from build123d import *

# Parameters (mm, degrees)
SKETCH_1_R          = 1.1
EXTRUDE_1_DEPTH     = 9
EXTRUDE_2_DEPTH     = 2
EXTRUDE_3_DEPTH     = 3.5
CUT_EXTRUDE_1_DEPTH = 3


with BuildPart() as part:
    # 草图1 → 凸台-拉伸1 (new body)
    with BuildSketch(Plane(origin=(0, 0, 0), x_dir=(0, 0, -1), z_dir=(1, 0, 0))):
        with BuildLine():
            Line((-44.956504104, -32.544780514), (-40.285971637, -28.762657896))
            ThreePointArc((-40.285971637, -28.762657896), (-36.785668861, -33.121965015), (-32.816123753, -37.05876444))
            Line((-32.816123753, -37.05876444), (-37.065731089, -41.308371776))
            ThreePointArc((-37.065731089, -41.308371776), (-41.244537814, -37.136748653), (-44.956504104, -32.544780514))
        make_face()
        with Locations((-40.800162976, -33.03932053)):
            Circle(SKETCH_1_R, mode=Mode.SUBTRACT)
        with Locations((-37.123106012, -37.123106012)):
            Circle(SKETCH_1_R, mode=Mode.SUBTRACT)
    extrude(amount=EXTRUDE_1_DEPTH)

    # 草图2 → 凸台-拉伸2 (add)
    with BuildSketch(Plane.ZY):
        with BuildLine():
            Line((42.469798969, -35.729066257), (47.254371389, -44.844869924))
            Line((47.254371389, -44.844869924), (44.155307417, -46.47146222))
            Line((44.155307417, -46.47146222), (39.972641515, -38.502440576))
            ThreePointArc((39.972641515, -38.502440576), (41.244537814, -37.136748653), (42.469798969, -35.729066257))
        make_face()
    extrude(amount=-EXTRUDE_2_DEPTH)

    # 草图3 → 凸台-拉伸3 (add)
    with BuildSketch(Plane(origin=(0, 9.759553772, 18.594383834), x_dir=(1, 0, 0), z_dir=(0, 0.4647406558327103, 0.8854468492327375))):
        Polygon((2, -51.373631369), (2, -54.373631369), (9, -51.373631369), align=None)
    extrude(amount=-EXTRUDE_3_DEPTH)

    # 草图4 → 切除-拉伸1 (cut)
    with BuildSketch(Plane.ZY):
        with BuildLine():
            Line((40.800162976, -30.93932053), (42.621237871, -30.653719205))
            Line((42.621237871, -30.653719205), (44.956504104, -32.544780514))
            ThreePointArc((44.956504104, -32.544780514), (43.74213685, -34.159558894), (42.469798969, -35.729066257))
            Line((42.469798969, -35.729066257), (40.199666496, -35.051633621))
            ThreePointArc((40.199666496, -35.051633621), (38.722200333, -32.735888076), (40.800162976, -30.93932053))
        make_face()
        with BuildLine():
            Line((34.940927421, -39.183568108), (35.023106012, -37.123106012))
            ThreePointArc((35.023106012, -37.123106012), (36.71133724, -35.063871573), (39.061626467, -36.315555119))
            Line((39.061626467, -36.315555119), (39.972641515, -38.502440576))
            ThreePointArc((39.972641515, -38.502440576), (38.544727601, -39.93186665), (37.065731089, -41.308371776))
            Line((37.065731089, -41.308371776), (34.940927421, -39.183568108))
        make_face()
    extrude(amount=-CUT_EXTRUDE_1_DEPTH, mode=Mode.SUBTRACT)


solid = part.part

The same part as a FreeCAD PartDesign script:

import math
import FreeCAD as App
import Part
import Sketcher
from FreeCAD import Vector
Q = App.Units.Quantity


def add_polygon(sketch, points):
    """Adds a closed chain of lines whose ends are joined by coincident constraints."""
    first, n = sketch.GeometryCount, len(points)
    for a, b in zip(points, points[1:] + points[:1]):
        sketch.addGeometry(Part.LineSegment(App.Vector(*a, 0), App.Vector(*b, 0)), False)
    for i in range(n):
        sketch.addConstraint(Sketcher.Constraint("Coincident", first + i, 2, first + (i + 1) % n, 1))

doc = App.newDocument("Part")
body = doc.addObject("PartDesign::Body", "Body")

sketch1 = body.newObject("Sketcher::SketchObject", "Sketch")
sketch1.AttachmentSupport = (doc.getObject("YZ_Plane"), [""])
sketch1.MapMode = "FlatFace"
sketch1.addGeometry([
    Part.LineSegment(Vector(-28.762658, 40.285972, 0), Vector(-32.544781, 44.956504, 0)),
    Part.ArcOfCircle(Part.Circle(Vector(0, 0, 0), Vector(0, 0, 1), 55.5), math.radians(125.901421), math.radians(138.098579)),
    Part.LineSegment(Vector(-41.308372, 37.065731, 0), Vector(-37.058764, 32.816124, 0)),
    Part.ArcOfCircle(Part.Circle(Vector(0, 0, 0), Vector(0, 0, 1), 49.5), math.radians(125.525399), math.radians(138.474601)),
    Part.Circle(Vector(-37.123106, 37.123106, 0), Vector(0, 0, 1), 1.1),
    Part.Circle(Vector(-33.039321, 40.800163, 0), Vector(0, 0, 1), 1.1),
], False)
sketch1.addConstraint([
    Sketcher.Constraint("Coincident", 0, 2, 1, 1),
    Sketcher.Constraint("Coincident", 1, 2, 2, 1),
    Sketcher.Constraint("Coincident", 2, 2, 3, 2),
    Sketcher.Constraint("Coincident", 3, 1, 0, 1),
    Sketcher.Constraint("Coincident", 1, 3, -1, 1),
    Sketcher.Constraint("Coincident", 3, 3, -1, 1),
    Sketcher.Constraint("Equal", 4, 5),
    Sketcher.Constraint("Equal", 0, 2),
    Sketcher.Constraint("Diameter", 4, 2.2),
    Sketcher.Constraint("Radius", 1, 55.5),
    Sketcher.Constraint("Radius", 3, 49.5),
    Sketcher.Constraint("Angle", 0, Q("129 deg")),
    Sketcher.Constraint("Angle", 2, Q("-45 deg")),
    Sketcher.Constraint("DistanceY", 4, 3, 0, 2, 7.833398),
    Sketcher.Constraint("DistanceX", 5, 3, -1, 1, 33.039321),
    Sketcher.Constraint("DistanceX", 0, 2, -1, 1, 32.544781),
    Sketcher.Constraint("DistanceY", 5, 3, 0, 2, 4.156341),
    Sketcher.Constraint("DistanceX", 4, 3, 2, 2, 0.064342),
])
pad1 = body.newObject("PartDesign::Pad", "Pad")
pad1.Profile = sketch1
pad1.Length = 9

sketch2 = body.newObject("Sketcher::SketchObject", "Sketch001")
sketch2.AttachmentSupport = (doc.getObject("YZ_Plane"), [""])
sketch2.MapMode = "FlatFace"
sketch2.addGeometry([
    Part.LineSegment(Vector(-44.84487, 47.254371, 0), Vector(-35.729066, 42.469799, 0)),
    Part.ArcOfCircle(Part.Circle(Vector(0, 0, 0), Vector(0, 0, 1), 55.5), math.radians(130.073289), math.radians(133.926711)),
    Part.LineSegment(Vector(-38.502441, 39.972642, 0), Vector(-46.471462, 44.155307, 0)),
    Part.LineSegment(Vector(-46.471462, 44.155307, 0), Vector(-44.84487, 47.254371, 0)),
], False)
sketch2.addConstraint([
    Sketcher.Constraint("Coincident", 0, 2, 1, 1),
    Sketcher.Constraint("Coincident", 1, 2, 2, 1),
    Sketcher.Constraint("Coincident", 2, 2, 3, 1),
    Sketcher.Constraint("Coincident", 3, 2, 0, 1),
    Sketcher.Constraint("Coincident", 1, 3, -1, 1),
    Sketcher.Constraint("Parallel", 0, 2),
    Sketcher.Constraint("Perpendicular", 2, 3),
    Sketcher.Constraint("Radius", 1, 55.5),
    Sketcher.Constraint("Distance", 2, 9.0),
    Sketcher.Constraint("Distance", 3, 3.5),
    Sketcher.Constraint("DistanceY", -1, 1, 0, 2, 42.469799),
    Sketcher.Constraint("DistanceX", 3, 2, -1, 1, 44.84487),
])
pad2 = body.newObject("PartDesign::Pad", "Pad001")
pad2.Profile = sketch2
pad2.Length = 2

sketch3 = body.newObject("Sketcher::SketchObject", "Sketch002")
sketch3.Placement = App.Placement(Vector(0, 9.759554, 18.594384), App.Rotation(Vector(1, 0, 0), Vector(0, 0.885446849, -0.464740656), Vector(0, 0.464740656, 0.885446849), "ZXY"))
add_polygon(sketch3, [(2, -51.373631), (2, -54.373631), (9, -51.373631)])
sketch3.addConstraint([
    Sketcher.Constraint("Vertical", 0),
    Sketcher.Constraint("Horizontal", 2),
    Sketcher.Constraint("DistanceX", 2, 2, 2, 1, 7.0),
    Sketcher.Constraint("DistanceY", 0, 2, 0, 1, 3.0),
    Sketcher.Constraint("DistanceX", -1, 1, 0, 2, 2.0),
    Sketcher.Constraint("DistanceY", 0, 2, -1, 1, 54.373631),
])
pad3 = body.newObject("PartDesign::Pad", "Pad002")
pad3.Profile = sketch3
pad3.Length = 3.5
pad3.Reversed = True

sketch4 = body.newObject("Sketcher::SketchObject", "Sketch003")
sketch4.AttachmentSupport = (doc.getObject("YZ_Plane"), [""])
sketch4.MapMode = "FlatFace"
sketch4.addGeometry([
    Part.LineSegment(Vector(-30.653719, 42.621238, 0), Vector(-30.939321, 40.800163, 0)),
    Part.ArcOfCircle(Part.Circle(Vector(-33.039321, 40.800163, 0), Vector(0, 0, 1), 2.1), math.radians(-163.384315), math.radians(0)),
    Part.LineSegment(Vector(-35.051634, 40.199666, 0), Vector(-35.729066, 42.469799, 0)),
    Part.ArcOfCircle(Part.Circle(Vector(0, 0, 0), Vector(0, 0, 1), 55.5), math.radians(125.901421), math.radians(130.073289)),
    Part.LineSegment(Vector(-32.544781, 44.956504, 0), Vector(-30.653719, 42.621238, 0)),
    Part.LineSegment(Vector(-37.123106, 35.023106, 0), Vector(-39.183568, 34.940927, 0)),
    Part.LineSegment(Vector(-39.183568, 34.940927, 0), Vector(-41.308372, 37.065731, 0)),
    Part.ArcOfCircle(Part.Circle(Vector(0, 0, 0), Vector(0, 0, 1), 55.5), math.radians(133.926711), math.radians(138.098579)),
    Part.LineSegment(Vector(-38.502441, 39.972642, 0), Vector(-36.315555, 39.061626, 0)),
    Part.ArcOfCircle(Part.Circle(Vector(-37.123106, 37.123106, 0), Vector(0, 0, 1), 2.1), math.radians(-90), math.radians(67.384315)),
], False)
sketch4.addConstraint([
    Sketcher.Constraint("Coincident", 0, 2, 1, 2),
    Sketcher.Constraint("Tangent", 1, 1, 2, 1),
    Sketcher.Constraint("Coincident", 2, 2, 3, 2),
    Sketcher.Constraint("Coincident", 3, 1, 4, 1),
    Sketcher.Constraint("Coincident", 4, 2, 0, 1),
    Sketcher.Constraint("Coincident", 5, 2, 6, 1),
    Sketcher.Constraint("Coincident", 6, 2, 7, 2),
    Sketcher.Constraint("Coincident", 7, 1, 8, 1),
    Sketcher.Constraint("Tangent", 8, 2, 9, 2),
    Sketcher.Constraint("Coincident", 9, 1, 5, 1),
    Sketcher.Constraint("Coincident", 3, 3, -1, 1),
    Sketcher.Constraint("Coincident", 7, 3, -1, 1),
    Sketcher.Constraint("Equal", 3, 7),
    Sketcher.Constraint("Equal", 1, 9),
    Sketcher.Constraint("Horizontal", 1, 3, 0, 2),
    Sketcher.Constraint("Equal", 4, 6),
    Sketcher.Constraint("Equal", 2, 8),
    Sketcher.Constraint("Radius", 1, 2.1),
    Sketcher.Constraint("Radius", 3, 55.5),
    Sketcher.Constraint("Angle", 4, Q("-51 deg")),
    Sketcher.Constraint("Angle", 6, Q("135 deg")),
    Sketcher.Constraint("Distance", 5, 2.0621),
    Sketcher.Constraint("DistanceY", -1, 1, 2, 2, 42.469799),
    Sketcher.Constraint("DistanceY", 9, 3, 3, 1, 7.833398),
    Sketcher.Constraint("DistanceX", 0, 2, 4, 2, 0.285601),
    Sketcher.Constraint("DistanceX", 5, 2, 2, 2, 3.454502),
    Sketcher.Constraint("DistanceX", 1, 3, -1, 1, 33.039321),
    Sketcher.Constraint("DistanceX", 3, 1, -1, 1, 32.544781),
    Sketcher.Constraint("DistanceX", 7, 1, -1, 1, 38.502441),
    Sketcher.Constraint("DistanceY", 9, 3, 1, 1, 3.07656),
])
pocket1 = body.newObject("PartDesign::Pocket", "Pocket")
pocket1.Profile = sketch4
pocket1.Length = 3
pocket1.Reversed = True

doc.recompute()
